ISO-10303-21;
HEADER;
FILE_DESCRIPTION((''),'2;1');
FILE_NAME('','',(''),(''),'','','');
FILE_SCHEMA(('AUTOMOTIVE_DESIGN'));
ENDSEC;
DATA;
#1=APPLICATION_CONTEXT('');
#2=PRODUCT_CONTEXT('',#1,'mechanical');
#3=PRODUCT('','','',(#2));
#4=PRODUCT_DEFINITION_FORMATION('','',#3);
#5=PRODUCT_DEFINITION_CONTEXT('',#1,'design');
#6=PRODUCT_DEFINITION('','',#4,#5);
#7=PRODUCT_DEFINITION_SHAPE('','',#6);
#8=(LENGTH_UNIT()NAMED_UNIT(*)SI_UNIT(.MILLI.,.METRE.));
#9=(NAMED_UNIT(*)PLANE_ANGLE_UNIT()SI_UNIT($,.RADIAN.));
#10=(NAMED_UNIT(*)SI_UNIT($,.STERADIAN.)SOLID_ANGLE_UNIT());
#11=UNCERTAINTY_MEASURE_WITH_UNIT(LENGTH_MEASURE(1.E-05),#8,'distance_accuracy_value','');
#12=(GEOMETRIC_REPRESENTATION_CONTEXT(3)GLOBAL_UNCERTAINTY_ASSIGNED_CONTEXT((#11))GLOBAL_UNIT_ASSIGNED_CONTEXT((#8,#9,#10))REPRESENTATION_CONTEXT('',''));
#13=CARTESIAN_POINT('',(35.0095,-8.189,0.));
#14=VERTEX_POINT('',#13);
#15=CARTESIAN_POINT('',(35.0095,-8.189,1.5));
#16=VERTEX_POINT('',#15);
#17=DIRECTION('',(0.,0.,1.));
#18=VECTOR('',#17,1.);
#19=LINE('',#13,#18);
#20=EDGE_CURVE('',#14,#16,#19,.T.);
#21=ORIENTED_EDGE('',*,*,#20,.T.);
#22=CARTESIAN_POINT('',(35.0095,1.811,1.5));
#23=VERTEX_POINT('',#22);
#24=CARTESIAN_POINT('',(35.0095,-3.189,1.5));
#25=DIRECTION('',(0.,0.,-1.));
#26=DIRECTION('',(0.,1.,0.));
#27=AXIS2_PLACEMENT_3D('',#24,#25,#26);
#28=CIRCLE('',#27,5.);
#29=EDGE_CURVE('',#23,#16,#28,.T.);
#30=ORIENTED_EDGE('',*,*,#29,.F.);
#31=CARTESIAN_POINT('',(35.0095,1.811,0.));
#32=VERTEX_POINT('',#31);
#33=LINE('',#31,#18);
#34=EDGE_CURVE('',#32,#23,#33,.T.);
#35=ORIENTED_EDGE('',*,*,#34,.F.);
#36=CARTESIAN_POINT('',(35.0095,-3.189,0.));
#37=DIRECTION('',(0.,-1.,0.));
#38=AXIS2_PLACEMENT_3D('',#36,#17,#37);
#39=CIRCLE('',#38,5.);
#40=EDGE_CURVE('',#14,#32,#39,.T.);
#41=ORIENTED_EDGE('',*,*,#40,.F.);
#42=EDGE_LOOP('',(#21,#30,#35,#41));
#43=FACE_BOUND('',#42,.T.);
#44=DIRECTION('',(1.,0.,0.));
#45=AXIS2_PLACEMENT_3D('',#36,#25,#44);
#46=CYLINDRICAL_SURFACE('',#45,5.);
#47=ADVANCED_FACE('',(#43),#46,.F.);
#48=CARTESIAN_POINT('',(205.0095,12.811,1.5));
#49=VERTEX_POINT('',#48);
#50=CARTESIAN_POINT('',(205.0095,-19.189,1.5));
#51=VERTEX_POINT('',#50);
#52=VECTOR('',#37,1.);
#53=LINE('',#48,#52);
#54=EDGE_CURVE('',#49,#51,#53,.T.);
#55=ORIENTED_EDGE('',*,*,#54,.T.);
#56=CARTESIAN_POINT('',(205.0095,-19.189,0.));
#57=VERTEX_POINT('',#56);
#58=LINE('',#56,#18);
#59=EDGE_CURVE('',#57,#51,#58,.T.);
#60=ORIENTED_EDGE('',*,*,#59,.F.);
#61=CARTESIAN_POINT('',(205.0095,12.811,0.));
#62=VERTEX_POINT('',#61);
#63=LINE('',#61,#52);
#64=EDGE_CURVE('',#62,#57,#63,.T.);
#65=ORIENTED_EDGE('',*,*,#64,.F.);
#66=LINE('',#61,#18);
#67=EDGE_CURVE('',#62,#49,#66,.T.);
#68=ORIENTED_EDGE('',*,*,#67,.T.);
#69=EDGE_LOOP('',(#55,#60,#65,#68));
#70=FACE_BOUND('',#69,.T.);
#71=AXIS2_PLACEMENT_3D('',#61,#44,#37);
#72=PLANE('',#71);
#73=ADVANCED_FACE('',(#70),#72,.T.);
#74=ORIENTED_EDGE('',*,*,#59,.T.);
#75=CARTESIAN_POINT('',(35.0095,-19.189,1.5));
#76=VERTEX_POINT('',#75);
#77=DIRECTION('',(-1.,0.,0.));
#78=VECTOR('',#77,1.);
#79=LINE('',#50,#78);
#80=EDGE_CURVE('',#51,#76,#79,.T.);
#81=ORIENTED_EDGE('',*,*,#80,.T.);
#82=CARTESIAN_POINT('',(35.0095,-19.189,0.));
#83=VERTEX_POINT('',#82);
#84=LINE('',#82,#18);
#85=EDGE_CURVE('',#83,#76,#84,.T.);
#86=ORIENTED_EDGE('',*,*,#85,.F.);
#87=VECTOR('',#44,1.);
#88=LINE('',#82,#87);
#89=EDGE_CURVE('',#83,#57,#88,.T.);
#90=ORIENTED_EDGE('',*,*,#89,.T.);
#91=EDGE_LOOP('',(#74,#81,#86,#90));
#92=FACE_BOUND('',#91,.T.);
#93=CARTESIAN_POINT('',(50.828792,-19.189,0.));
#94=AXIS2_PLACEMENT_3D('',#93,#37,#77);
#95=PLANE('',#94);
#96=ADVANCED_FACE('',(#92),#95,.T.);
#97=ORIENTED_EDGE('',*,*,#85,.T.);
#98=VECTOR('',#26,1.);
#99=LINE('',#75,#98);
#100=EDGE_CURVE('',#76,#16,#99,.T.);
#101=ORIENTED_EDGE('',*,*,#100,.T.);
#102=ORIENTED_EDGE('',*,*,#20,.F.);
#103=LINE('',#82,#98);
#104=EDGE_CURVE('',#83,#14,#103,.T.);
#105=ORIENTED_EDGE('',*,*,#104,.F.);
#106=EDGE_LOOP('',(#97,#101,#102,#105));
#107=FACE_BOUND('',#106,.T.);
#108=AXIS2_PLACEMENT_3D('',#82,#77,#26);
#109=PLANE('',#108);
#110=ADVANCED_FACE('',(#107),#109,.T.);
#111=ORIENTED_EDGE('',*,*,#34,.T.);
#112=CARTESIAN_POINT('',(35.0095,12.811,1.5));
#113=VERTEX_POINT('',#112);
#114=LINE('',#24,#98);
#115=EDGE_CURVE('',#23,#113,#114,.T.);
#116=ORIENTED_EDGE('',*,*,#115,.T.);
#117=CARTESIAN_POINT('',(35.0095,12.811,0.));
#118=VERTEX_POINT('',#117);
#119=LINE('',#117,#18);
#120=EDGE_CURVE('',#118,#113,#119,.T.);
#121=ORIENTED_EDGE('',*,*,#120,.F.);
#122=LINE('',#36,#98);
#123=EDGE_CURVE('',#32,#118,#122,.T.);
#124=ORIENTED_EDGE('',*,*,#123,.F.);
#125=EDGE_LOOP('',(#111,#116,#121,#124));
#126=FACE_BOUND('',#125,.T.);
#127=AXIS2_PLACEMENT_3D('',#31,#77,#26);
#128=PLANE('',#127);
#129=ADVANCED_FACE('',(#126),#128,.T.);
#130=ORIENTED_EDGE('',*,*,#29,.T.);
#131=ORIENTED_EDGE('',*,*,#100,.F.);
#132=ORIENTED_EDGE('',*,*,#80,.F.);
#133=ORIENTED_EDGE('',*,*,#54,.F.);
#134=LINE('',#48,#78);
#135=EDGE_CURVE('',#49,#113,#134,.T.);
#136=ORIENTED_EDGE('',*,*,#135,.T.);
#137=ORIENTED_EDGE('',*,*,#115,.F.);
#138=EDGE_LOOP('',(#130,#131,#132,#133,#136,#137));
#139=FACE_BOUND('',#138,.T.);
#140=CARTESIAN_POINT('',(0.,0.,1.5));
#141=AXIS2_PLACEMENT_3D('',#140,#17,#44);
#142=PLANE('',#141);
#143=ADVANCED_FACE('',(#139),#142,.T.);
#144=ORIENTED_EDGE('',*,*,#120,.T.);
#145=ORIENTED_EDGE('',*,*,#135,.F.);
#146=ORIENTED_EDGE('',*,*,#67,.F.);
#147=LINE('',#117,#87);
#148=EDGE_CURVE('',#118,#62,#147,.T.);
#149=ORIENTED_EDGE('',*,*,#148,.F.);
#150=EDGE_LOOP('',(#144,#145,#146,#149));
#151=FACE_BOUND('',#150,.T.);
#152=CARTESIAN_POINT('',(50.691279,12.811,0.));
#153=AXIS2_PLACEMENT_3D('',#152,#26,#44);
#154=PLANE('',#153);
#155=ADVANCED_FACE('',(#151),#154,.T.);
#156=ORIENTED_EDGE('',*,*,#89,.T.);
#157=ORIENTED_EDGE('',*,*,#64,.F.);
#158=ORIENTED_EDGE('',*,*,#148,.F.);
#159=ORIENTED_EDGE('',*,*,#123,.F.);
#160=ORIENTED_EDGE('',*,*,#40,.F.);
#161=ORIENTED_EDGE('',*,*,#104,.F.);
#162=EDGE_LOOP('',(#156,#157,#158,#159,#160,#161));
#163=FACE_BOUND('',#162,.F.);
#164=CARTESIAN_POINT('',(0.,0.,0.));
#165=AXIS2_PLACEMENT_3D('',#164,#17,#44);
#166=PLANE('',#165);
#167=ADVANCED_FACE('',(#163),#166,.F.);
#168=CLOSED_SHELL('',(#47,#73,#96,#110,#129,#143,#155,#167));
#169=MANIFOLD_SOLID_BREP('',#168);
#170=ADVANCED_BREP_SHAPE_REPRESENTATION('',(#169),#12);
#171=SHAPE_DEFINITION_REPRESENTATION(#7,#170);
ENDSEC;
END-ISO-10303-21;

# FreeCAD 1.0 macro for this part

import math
import FreeCAD as App
import Part
import Sketcher

V = App.Vector
Q = App.Units.Quantity

doc = App.newDocument("Part")
body = doc.addObject("PartDesign::Body", "Body")

sketch1 = doc.addObject("Sketcher::SketchObject", "Sketch")
body.addObject(sketch1)
sketch1.AttachmentSupport = (doc.XY_Plane, [""])
sketch1.MapMode = "FlatFace"
sketch1.addGeometry(Part.LineSegment(V(205, -19, 0), V(205, 13, 0)), False)
sketch1.addGeometry(Part.LineSegment(V(205, 13, 0), V(35, 13, 0)), False)
sketch1.addGeometry(Part.LineSegment(V(35, 13, 0), V(35, 2, 0)), False)
sketch1.addGeometry(Part.ArcOfCircle(Part.Circle(V(35, -3, 0), V(0, 0, 1), 5), math.radians(-90), math.radians(90)), False)
sketch1.addGeometry(Part.LineSegment(V(35, -8, 0), V(35, -19, 0)), False)
sketch1.addGeometry(Part.LineSegment(V(35, -19, 0), V(205, -19, 0)), False)
sketch1.addConstraint(Sketcher.Constraint("Coincident", 0, 2, 1, 1))
sketch1.addConstraint(Sketcher.Constraint("Coincident", 1, 2, 2, 1))
sketch1.addConstraint(Sketcher.Constraint("Coincident", 2, 2, 3, 2))
sketch1.addConstraint(Sketcher.Constraint("Coincident", 3, 1, 4, 1))
sketch1.addConstraint(Sketcher.Constraint("Coincident", 4, 2, 5, 1))
sketch1.addConstraint(Sketcher.Constraint("Coincident", 5, 2, 0, 1))
sketch1.addConstraint(Sketcher.Constraint("Vertical", 0))
sketch1.addConstraint(Sketcher.Constraint("Horizontal", 1))
sketch1.addConstraint(Sketcher.Constraint("Vertical", 2))
sketch1.addConstraint(Sketcher.Constraint("Vertical", 4))
sketch1.addConstraint(Sketcher.Constraint("Horizontal", 5))
sketch1.addConstraint(Sketcher.Constraint("Vertical", 3, 3, 1, 2))
sketch1.addConstraint(Sketcher.Constraint("Vertical", 2, 2, 3, 1))
sketch1.addConstraint(Sketcher.Constraint("Equal", 2, 4))
sketch1.addConstraint(Sketcher.Constraint("Radius", 3, Q("5 mm")))
sketch1.addConstraint(Sketcher.Constraint("DistanceX", 1, 2, 1, 1, Q("170 mm")))
sketch1.addConstraint(Sketcher.Constraint("DistanceY", 0, 1, 0, 2, Q("32 mm")))
sketch1.addConstraint(Sketcher.Constraint("DistanceY", 3, 3, -1, 1, Q("3.189 mm")))
sketch1.addConstraint(Sketcher.Constraint("DistanceX", -1, 1, 3, 3, Q("35.0095 mm")))
pad1 = doc.addObject("PartDesign::Pad", "Pad")
body.addObject(pad1)
pad1.Profile = sketch1
pad1.Length = 1.5

doc.recompute()
